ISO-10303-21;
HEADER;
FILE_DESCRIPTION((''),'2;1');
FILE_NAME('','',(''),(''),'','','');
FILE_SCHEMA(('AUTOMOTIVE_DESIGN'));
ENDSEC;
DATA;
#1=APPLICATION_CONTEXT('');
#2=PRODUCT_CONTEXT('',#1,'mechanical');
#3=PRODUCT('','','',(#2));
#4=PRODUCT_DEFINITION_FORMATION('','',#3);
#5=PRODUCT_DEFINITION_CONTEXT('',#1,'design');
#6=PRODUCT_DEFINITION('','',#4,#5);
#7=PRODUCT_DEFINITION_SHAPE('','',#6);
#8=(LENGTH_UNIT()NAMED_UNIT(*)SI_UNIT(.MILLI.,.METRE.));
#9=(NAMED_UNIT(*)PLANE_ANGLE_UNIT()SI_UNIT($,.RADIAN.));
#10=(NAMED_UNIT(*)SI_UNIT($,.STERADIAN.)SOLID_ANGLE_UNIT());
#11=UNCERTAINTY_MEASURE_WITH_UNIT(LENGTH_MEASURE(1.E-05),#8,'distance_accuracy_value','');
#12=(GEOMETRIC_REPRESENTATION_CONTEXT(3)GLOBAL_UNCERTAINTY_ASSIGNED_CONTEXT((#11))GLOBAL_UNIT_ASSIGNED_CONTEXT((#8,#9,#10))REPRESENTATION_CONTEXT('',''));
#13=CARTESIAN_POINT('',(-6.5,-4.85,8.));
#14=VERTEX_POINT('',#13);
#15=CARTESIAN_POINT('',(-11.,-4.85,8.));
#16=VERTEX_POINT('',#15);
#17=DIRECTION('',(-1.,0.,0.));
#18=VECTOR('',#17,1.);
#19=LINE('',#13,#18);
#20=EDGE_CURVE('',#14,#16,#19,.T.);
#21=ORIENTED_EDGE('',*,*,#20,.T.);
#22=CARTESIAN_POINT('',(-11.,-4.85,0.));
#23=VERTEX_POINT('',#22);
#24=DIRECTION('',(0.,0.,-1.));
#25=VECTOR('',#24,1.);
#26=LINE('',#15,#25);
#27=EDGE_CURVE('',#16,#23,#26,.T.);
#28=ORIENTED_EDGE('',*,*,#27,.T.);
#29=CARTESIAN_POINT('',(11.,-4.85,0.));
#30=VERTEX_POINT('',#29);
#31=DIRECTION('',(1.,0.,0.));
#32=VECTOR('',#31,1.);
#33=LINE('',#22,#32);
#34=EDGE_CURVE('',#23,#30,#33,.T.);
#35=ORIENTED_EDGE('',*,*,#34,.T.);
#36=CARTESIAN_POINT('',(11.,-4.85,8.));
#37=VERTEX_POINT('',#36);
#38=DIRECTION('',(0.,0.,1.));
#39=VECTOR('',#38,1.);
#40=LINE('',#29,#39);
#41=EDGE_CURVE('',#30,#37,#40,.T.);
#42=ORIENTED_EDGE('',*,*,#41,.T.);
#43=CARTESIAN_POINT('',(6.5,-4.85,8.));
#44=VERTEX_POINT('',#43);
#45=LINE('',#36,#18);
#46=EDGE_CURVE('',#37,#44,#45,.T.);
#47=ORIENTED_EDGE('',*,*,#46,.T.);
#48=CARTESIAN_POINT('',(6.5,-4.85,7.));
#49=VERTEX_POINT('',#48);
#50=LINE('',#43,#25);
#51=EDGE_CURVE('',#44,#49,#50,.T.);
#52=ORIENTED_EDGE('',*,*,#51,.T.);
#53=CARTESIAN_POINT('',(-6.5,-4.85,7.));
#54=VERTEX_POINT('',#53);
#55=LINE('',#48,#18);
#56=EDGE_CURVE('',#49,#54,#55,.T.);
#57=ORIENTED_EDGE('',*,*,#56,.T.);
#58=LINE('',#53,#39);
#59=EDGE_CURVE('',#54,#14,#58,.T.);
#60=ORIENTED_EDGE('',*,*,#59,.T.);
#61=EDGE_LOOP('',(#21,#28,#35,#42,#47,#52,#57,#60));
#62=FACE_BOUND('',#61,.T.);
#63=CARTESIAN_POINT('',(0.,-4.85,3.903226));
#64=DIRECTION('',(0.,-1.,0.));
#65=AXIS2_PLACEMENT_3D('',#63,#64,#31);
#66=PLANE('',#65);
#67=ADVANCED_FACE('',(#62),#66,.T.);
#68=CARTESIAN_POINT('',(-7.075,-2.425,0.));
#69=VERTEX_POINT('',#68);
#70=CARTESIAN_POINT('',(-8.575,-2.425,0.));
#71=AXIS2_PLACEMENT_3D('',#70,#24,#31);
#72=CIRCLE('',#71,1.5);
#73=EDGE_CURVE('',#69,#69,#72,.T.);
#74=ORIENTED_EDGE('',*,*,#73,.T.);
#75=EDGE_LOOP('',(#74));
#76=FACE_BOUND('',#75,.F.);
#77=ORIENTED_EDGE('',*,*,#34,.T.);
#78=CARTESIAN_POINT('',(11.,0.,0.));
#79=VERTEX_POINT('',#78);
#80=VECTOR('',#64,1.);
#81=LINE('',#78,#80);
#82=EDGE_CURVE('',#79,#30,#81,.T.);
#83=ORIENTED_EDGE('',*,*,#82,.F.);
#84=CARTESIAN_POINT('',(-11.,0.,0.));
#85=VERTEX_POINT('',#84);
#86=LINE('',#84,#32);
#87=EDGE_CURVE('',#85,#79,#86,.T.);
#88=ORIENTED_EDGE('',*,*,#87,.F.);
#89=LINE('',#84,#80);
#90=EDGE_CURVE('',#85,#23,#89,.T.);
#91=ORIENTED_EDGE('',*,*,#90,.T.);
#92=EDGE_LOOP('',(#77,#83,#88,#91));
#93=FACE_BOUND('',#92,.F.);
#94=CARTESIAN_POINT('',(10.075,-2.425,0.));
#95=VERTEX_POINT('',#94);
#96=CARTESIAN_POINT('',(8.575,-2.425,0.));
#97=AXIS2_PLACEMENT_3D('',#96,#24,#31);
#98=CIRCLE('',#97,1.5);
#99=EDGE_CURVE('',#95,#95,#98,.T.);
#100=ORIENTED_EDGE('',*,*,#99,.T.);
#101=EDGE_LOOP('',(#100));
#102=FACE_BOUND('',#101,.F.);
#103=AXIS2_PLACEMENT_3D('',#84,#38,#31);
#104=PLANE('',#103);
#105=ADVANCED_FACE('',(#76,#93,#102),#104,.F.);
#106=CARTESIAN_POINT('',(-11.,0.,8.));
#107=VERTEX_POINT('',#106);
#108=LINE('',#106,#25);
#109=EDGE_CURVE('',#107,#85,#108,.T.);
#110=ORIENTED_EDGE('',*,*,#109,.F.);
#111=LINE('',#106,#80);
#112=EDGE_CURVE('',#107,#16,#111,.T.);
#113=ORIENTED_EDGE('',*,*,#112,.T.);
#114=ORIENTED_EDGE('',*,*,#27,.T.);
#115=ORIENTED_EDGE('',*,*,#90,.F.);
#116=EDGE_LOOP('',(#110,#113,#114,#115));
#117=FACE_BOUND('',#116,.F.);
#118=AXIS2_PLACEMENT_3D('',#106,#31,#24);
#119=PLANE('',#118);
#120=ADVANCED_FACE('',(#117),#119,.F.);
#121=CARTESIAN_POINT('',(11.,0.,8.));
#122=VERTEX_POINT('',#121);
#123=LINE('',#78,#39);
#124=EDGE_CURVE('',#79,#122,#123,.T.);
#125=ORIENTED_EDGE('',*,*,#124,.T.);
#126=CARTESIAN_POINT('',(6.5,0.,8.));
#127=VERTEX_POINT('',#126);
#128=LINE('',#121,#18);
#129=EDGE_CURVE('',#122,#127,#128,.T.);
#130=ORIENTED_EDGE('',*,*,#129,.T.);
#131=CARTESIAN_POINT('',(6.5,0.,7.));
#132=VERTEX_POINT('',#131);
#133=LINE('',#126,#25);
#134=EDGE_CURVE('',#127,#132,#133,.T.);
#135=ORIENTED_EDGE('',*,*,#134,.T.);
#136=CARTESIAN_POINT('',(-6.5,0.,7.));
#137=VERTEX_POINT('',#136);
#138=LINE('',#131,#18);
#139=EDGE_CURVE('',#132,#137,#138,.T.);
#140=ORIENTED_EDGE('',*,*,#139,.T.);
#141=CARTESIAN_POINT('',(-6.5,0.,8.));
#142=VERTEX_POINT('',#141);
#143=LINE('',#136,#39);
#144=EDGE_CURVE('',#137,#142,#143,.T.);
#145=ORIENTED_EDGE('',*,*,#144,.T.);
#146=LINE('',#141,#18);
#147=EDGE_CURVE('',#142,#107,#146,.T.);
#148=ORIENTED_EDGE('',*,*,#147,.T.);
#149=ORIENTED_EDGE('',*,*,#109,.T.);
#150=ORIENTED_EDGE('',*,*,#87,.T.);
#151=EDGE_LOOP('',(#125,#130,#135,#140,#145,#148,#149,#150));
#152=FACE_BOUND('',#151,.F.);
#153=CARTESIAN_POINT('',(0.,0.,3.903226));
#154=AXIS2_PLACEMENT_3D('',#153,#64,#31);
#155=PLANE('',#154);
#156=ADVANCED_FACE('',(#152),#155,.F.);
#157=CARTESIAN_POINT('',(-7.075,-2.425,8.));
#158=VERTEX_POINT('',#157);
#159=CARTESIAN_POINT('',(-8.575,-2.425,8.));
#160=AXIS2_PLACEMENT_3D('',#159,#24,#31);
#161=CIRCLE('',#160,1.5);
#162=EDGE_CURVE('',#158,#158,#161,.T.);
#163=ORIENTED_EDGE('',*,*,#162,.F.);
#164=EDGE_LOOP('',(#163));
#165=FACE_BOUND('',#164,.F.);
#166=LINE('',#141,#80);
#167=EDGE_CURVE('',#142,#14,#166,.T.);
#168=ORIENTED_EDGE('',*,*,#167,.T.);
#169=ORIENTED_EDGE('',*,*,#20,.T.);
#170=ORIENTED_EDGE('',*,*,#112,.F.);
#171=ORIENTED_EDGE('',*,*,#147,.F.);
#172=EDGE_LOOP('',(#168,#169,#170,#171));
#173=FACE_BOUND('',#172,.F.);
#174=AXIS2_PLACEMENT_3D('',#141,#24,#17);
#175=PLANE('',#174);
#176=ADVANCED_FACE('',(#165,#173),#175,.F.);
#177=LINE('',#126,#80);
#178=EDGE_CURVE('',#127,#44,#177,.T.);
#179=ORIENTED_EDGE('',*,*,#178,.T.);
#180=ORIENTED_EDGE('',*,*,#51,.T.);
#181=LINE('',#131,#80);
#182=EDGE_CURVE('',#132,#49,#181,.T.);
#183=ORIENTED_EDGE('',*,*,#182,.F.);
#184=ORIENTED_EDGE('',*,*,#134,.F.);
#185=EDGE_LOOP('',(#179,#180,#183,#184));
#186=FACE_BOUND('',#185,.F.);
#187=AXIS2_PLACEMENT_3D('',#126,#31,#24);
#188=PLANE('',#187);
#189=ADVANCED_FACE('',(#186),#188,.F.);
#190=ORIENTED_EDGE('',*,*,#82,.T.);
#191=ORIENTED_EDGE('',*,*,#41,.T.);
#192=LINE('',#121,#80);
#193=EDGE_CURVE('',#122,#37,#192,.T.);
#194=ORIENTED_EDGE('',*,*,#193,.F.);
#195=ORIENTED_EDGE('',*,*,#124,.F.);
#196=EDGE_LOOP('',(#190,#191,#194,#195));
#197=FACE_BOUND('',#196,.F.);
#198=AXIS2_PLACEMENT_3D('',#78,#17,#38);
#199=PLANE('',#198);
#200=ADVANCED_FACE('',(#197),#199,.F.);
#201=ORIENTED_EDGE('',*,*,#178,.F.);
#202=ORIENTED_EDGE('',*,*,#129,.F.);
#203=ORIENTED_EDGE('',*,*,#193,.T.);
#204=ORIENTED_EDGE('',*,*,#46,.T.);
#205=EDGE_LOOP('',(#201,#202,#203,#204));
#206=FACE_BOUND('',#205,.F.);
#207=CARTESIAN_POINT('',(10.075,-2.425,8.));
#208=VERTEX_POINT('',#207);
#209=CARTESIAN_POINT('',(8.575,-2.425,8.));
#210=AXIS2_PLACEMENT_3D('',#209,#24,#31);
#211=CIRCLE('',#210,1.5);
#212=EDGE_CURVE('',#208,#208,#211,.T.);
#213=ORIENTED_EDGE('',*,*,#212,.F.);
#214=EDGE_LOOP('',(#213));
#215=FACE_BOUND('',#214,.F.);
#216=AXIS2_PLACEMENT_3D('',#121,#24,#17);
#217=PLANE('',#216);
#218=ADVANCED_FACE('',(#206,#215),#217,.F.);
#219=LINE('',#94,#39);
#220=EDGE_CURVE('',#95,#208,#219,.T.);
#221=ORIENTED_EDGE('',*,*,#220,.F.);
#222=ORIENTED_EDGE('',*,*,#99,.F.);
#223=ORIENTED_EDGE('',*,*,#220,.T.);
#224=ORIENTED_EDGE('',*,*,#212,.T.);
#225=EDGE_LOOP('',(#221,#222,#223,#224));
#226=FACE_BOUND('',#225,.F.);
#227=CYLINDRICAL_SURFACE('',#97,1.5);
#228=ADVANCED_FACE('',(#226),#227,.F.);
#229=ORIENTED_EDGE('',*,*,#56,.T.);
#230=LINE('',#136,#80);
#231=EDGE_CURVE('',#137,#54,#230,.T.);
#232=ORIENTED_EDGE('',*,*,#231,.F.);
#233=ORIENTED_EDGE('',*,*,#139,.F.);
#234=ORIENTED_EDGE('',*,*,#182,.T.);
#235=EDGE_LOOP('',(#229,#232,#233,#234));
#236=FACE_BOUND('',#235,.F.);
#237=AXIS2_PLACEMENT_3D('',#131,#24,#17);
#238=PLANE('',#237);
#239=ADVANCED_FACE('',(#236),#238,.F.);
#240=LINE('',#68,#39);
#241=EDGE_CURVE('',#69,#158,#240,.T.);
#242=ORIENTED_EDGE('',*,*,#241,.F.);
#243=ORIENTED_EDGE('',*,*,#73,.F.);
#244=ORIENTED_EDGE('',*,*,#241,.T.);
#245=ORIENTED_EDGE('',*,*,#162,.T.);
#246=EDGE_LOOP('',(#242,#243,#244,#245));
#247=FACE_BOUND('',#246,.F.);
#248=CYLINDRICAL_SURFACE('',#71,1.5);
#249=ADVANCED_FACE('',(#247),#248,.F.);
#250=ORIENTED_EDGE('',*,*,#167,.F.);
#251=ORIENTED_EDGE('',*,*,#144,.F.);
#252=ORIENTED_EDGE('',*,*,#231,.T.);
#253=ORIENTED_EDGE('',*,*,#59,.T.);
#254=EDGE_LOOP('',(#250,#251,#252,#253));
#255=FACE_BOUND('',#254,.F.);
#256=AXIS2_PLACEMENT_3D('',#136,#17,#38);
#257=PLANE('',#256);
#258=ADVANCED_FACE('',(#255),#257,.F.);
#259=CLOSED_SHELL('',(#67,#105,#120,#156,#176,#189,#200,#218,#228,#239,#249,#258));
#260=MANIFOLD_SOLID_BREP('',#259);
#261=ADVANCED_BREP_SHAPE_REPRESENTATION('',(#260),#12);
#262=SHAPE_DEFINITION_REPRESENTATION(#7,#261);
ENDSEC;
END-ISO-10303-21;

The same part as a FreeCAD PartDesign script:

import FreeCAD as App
import Part
import Sketcher
from FreeCAD import Vector
Q = App.Units.Quantity

doc = App.newDocument("Part")
params = doc.addObject("Spreadsheet::Sheet", "Params")
for row, (alias, value) in enumerate([
    ("sketch1_width", "22 mm"),
    ("sketch1_width2", "13 mm"),
    ("sketch1_height", "8 mm"),
    ("sketch1_height2", "1 mm"),
    ("pad1_length", "4.85 mm"),
    ("sketch2_diameter", "3 mm"),
    ("pocket1_length", "10 mm"),
], start=1):
    params.set(f"A{row}", alias)
    params.set(f"B{row}", "=" + value)
    params.setAlias(f"B{row}", alias)

body = doc.addObject("PartDesign::Body", "Body")

# Sketch on XZ plane
sketch1 = body.newObject("Sketcher::SketchObject", "Sketch")
sketch1.AttachmentSupport = (doc.getObject("XZ_Plane"), [""])
sketch1.MapMode = "FlatFace"
sketch1.addGeometry(Part.LineSegment(Vector(-11, 8, 0), Vector(-11, 0, 0)), False)
sketch1.addGeometry(Part.LineSegment(Vector(-11, 0, 0), Vector(11, 0, 0)), False)
sketch1.addGeometry(Part.LineSegment(Vector(11, 0, 0), Vector(11, 8, 0)), False)
sketch1.addGeometry(Part.LineSegment(Vector(11, 8, 0), Vector(6.5, 8, 0)), False)
sketch1.addGeometry(Part.LineSegment(Vector(6.5, 8, 0), Vector(6.5, 7, 0)), False)
sketch1.addGeometry(Part.LineSegment(Vector(6.5, 7, 0), Vector(-6.5, 7, 0)), False)
sketch1.addGeometry(Part.LineSegment(Vector(-6.5, 7, 0), Vector(-6.5, 8, 0)), False)
sketch1.addGeometry(Part.LineSegment(Vector(-6.5, 8, 0), Vector(-11, 8, 0)), False)
sketch1.addConstraint(Sketcher.Constraint("Coincident", 0, 2, 1, 1))
sketch1.addConstraint(Sketcher.Constraint("Coincident", 1, 2, 2, 1))
sketch1.addConstraint(Sketcher.Constraint("Coincident", 2, 2, 3, 1))
sketch1.addConstraint(Sketcher.Constraint("Coincident", 3, 2, 4, 1))
sketch1.addConstraint(Sketcher.Constraint("Coincident", 4, 2, 5, 1))
sketch1.addConstraint(Sketcher.Constraint("Coincident", 5, 2, 6, 1))
sketch1.addConstraint(Sketcher.Constraint("Coincident", 6, 2, 7, 1))
sketch1.addConstraint(Sketcher.Constraint("Coincident", 7, 2, 0, 1))
sketch1.addConstraint(Sketcher.Constraint("Vertical", 0))
sketch1.addConstraint(Sketcher.Constraint("Horizontal", 1))
sketch1.addConstraint(Sketcher.Constraint("Vertical", 2))
sketch1.addConstraint(Sketcher.Constraint("Horizontal", 3))
sketch1.addConstraint(Sketcher.Constraint("Vertical", 4))
sketch1.addConstraint(Sketcher.Constraint("Horizontal", 5))
sketch1.addConstraint(Sketcher.Constraint("Vertical", 6))
sketch1.addConstraint(Sketcher.Constraint("Horizontal", 7))
sketch1.addConstraint(Sketcher.Constraint("Symmetric", 0, 2, 1, 2, -1, 1))
sketch1.addConstraint(Sketcher.Constraint("Symmetric", 3, 2, 6, 2, -2))
sketch1.addConstraint(Sketcher.Constraint("DistanceX", 1, 1, 1, 2, Q("22 mm")))
sketch1.addConstraint(Sketcher.Constraint("DistanceX", 5, 2, 5, 1, Q("13 mm")))
sketch1.addConstraint(Sketcher.Constraint("DistanceY", 0, 2, 0, 1, Q("8 mm")))
sketch1.addConstraint(Sketcher.Constraint("DistanceY", 4, 2, 4, 1, Q("1 mm")))
sketch1.setExpression("Constraints[18]", "Params.sketch1_width")
sketch1.setExpression("Constraints[19]", "Params.sketch1_width2")
sketch1.setExpression("Constraints[20]", "Params.sketch1_height")
sketch1.setExpression("Constraints[21]", "Params.sketch1_height2")
pad1 = body.newObject("PartDesign::Pad", "Pad")
pad1.Profile = sketch1
pad1.setExpression("Length", "Params.pad1_length")

# Sketch on XY plane
sketch2 = body.newObject("Sketcher::SketchObject", "Sketch001")
sketch2.AttachmentSupport = (doc.getObject("XY_Plane"), [""])
sketch2.MapMode = "FlatFace"
sketch2.addGeometry(Part.Circle(Vector(-8.575, -2.425, 0), Vector(0, 0, 1), 1.5), False)
sketch2.addGeometry(Part.Circle(Vector(8.575, -2.425, 0), Vector(0, 0, 1), 1.5), False)
sketch2.addConstraint(Sketcher.Constraint("Equal", 0, 1))
sketch2.addConstraint(Sketcher.Constraint("Symmetric", 0, 3, 1, 3, -2))
sketch2.addConstraint(Sketcher.Constraint("Diameter", 0, Q("3 mm")))
sketch2.addConstraint(Sketcher.Constraint("DistanceX", 0, 3, 1, 3, Q("17.15 mm")))
sketch2.addConstraint(Sketcher.Constraint("DistanceY", 0, 3, -1, 1, Q("2.425 mm")))
sketch2.setExpression("Constraints[2]", "Params.sketch2_diameter")
pocket1 = body.newObject("PartDesign::Pocket", "Pocket")
pocket1.Profile = sketch2
pocket1.setExpression("Length", "Params.pocket1_length")
pocket1.Reversed = True

doc.recompute()
